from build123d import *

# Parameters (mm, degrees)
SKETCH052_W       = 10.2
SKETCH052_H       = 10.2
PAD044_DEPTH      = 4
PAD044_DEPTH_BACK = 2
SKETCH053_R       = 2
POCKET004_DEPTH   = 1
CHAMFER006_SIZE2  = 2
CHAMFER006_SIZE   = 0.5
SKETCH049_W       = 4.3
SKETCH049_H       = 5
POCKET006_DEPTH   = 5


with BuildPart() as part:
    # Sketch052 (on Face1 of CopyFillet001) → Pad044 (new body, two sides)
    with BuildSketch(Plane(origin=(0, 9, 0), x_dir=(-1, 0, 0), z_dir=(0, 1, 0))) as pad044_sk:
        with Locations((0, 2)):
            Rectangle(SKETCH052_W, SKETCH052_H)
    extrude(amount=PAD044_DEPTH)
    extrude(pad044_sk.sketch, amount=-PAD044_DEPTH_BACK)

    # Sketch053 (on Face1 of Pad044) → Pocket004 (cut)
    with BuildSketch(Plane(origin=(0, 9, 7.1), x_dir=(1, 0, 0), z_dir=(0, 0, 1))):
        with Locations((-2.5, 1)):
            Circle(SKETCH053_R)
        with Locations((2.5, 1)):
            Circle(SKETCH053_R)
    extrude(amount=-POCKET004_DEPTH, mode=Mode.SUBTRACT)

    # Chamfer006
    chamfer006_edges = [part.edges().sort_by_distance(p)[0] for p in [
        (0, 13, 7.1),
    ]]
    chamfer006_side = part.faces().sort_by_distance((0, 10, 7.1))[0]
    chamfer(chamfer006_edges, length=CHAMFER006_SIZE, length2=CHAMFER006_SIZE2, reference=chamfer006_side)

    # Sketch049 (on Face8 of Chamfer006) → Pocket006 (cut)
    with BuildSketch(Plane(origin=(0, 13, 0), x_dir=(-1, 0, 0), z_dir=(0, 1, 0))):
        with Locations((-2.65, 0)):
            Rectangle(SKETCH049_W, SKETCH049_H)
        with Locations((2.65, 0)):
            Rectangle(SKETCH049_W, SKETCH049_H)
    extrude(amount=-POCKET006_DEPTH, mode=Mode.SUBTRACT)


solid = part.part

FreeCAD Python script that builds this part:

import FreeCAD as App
import Part
import Sketcher

V = App.Vector
Q = App.Units.Quantity


def edges_at(feature, points):
    """Names of the edges that pass closest to the given points."""
    edges = feature.Shape.Edges
    near = lambda p: min(range(len(edges)), key=lambda i: edges[i].distToShape(Part.Vertex(*p))[0])
    return sorted({f"Edge{near(p) + 1}" for p in points})

doc = App.newDocument("Part")
body = doc.addObject("PartDesign::Body", "Body")

sketch1 = doc.addObject("Sketcher::SketchObject", "Sketch")
body.addObject(sketch1)
sketch1.AttachmentSupport = (doc.XZ_Plane, [""])
sketch1.MapMode = "FlatFace"
sketch1.AttachmentOffset = App.Placement(V(0, 0, -9), App.Rotation())
sketch1.addGeometry(Part.LineSegment(V(5, 7, 0), V(5, -3, 0)), False)
sketch1.addGeometry(Part.LineSegment(V(5, -3, 0), V(-5, -3, 0)), False)
sketch1.addGeometry(Part.LineSegment(V(-5, -3, 0), V(-5, 7, 0)), False)
sketch1.addGeometry(Part.LineSegment(V(-5, 7, 0), V(5, 7, 0)), False)
sketch1.addConstraint(Sketcher.Constraint("Coincident", 0, 2, 1, 1))
sketch1.addConstraint(Sketcher.Constraint("Coincident", 1, 2, 2, 1))
sketch1.addConstraint(Sketcher.Constraint("Coincident", 2, 2, 3, 1))
sketch1.addConstraint(Sketcher.Constraint("Coincident", 3, 2, 0, 1))
sketch1.addConstraint(Sketcher.Constraint("Vertical", 0))
sketch1.addConstraint(Sketcher.Constraint("Horizontal", 1))
sketch1.addConstraint(Sketcher.Constraint("Vertical", 2))
sketch1.addConstraint(Sketcher.Constraint("Horizontal", 3))
sketch1.addConstraint(Sketcher.Constraint("Equal", 3, 0))
sketch1.addConstraint(Sketcher.Constraint("DistanceX", 1, 2, 1, 1, Q("10.2 mm")))
sketch1.addConstraint(Sketcher.Constraint("DistanceX", -1, 1, 0, 2, Q("5.1 mm")))
sketch1.addConstraint(Sketcher.Constraint("DistanceY", 0, 2, -1, 1, Q("3.1 mm")))
pad1 = doc.addObject("PartDesign::Pad", "Pad")
body.addObject(pad1)
pad1.Profile = sketch1
pad1.Type = "TwoLengths"
pad1.Length = 4
pad1.Length2 = 2
pad1.Reversed = True

sketch2 = doc.addObject("Sketcher::SketchObject", "Sketch001")
body.addObject(sketch2)
sketch2.AttachmentSupport = (doc.XY_Plane, [""])
sketch2.MapMode = "FlatFace"
sketch2.AttachmentOffset = App.Placement(V(0, 0, 7.1), App.Rotation())
sketch2.addGeometry(Part.Circle(V(-2.5, 10, 0), V(0, 0, 1), 2), False)
sketch2.addGeometry(Part.Circle(V(2.5, 10, 0), V(0, 0, 1), 2), False)
sketch2.addConstraint(Sketcher.Constraint("Equal", 0, 1))
sketch2.addConstraint(Sketcher.Constraint("Symmetric", 0, 3, 1, 3, -2))
sketch2.addConstraint(Sketcher.Constraint("Diameter", 0, Q("4 mm")))
sketch2.addConstraint(Sketcher.Constraint("DistanceY", -1, 1, 0, 3, Q("10 mm")))
sketch2.addConstraint(Sketcher.Constraint("DistanceX", 0, 3, 1, 3, Q("5 mm")))
pocket1 = doc.addObject("PartDesign::Pocket", "Pocket")
body.addObject(pocket1)
pocket1.Profile = sketch2
pocket1.Length = 1
doc.recompute()

chamfer = doc.addObject("PartDesign::Chamfer", "Chamfer")
body.addObject(chamfer)
chamfer.Base = (pocket1, edges_at(pocket1, [(0, 13, 7.1)]))
chamfer.ChamferType = "Two distances"
chamfer.Size = 0.5
chamfer.Size2 = 2

sketch3 = doc.addObject("Sketcher::SketchObject", "Sketch002")
body.addObject(sketch3)
sketch3.AttachmentSupport = (doc.XZ_Plane, [""])
sketch3.MapMode = "FlatFace"
sketch3.AttachmentOffset = App.Placement(V(0, 0, -13), App.Rotation())
sketch3.addGeometry(Part.LineSegment(V(4.8, 2.5, 0), V(4.8, -2.5, 0)), False)
sketch3.addGeometry(Part.LineSegment(V(4.8, -2.5, 0), V(0.5, -2.5, 0)), False)
sketch3.addGeometry(Part.LineSegment(V(0.5, -2.5, 0), V(0.5, 2.5, 0)), False)
sketch3.addGeometry(Part.LineSegment(V(0.5, 2.5, 0), V(4.8, 2.5, 0)), False)
sketch3.addGeometry(Part.LineSegment(V(-0.5, 2.5, 0), V(-0.5, -2.5, 0)), False)
sketch3.addGeometry(Part.LineSegment(V(-0.5, -2.5, 0), V(-4.8, -2.5, 0)), False)
sketch3.addGeometry(Part.LineSegment(V(-4.8, -2.5, 0), V(-4.8, 2.5, 0)), False)
sketch3.addGeometry(Part.LineSegment(V(-4.8, 2.5, 0), V(-0.5, 2.5, 0)), False)
sketch3.addConstraint(Sketcher.Constraint("Coincident", 0, 2, 1, 1))
sketch3.addConstraint(Sketcher.Constraint("Coincident", 1, 2, 2, 1))
sketch3.addConstraint(Sketcher.Constraint("Coincident", 2, 2, 3, 1))
sketch3.addConstraint(Sketcher.Constraint("Coincident", 3, 2, 0, 1))
sketch3.addConstraint(Sketcher.Constraint("Coincident", 4, 2, 5, 1))
sketch3.addConstraint(Sketcher.Constraint("Coincident", 5, 2, 6, 1))
sketch3.addConstraint(Sketcher.Constraint("Coincident", 6, 2, 7, 1))
sketch3.addConstraint(Sketcher.Constraint("Coincident", 7, 2, 4, 1))
sketch3.addConstraint(Sketcher.Constraint("Vertical", 0))
sketch3.addConstraint(Sketcher.Constraint("Horizontal", 1))
sketch3.addConstraint(Sketcher.Constraint("Vertical", 2))
sketch3.addConstraint(Sketcher.Constraint("Horizontal", 3))
sketch3.addConstraint(Sketcher.Constraint("Vertical", 4))
sketch3.addConstraint(Sketcher.Constraint("Horizontal", 5))
sketch3.addConstraint(Sketcher.Constraint("Vertical", 6))
sketch3.addConstraint(Sketcher.Constraint("Horizontal", 7))
sketch3.addConstraint(Sketcher.Constraint("Symmetric", 2, 2, 4, 2, -1, 1))
sketch3.addConstraint(Sketcher.Constraint("Symmetric", 0, 2, 6, 2, -1, 1))
sketch3.addConstraint(Sketcher.Constraint("Horizontal", 1, 2, 4, 2))
sketch3.addConstraint(Sketcher.Constraint("DistanceY", 0, 2, 0, 1, Q("5 mm")))
sketch3.addConstraint(Sketcher.Constraint("DistanceX", 1, 2, 1, 1, Q("4.3 mm")))
sketch3.addConstraint(Sketcher.Constraint("DistanceX", 4, 2, 1, 2, Q("1 mm")))
pocket2 = doc.addObject("PartDesign::Pocket", "Pocket001")
body.addObject(pocket2)
pocket2.Profile = sketch3
pocket2.Length = 5
pocket2.Reversed = True

doc.recompute()
